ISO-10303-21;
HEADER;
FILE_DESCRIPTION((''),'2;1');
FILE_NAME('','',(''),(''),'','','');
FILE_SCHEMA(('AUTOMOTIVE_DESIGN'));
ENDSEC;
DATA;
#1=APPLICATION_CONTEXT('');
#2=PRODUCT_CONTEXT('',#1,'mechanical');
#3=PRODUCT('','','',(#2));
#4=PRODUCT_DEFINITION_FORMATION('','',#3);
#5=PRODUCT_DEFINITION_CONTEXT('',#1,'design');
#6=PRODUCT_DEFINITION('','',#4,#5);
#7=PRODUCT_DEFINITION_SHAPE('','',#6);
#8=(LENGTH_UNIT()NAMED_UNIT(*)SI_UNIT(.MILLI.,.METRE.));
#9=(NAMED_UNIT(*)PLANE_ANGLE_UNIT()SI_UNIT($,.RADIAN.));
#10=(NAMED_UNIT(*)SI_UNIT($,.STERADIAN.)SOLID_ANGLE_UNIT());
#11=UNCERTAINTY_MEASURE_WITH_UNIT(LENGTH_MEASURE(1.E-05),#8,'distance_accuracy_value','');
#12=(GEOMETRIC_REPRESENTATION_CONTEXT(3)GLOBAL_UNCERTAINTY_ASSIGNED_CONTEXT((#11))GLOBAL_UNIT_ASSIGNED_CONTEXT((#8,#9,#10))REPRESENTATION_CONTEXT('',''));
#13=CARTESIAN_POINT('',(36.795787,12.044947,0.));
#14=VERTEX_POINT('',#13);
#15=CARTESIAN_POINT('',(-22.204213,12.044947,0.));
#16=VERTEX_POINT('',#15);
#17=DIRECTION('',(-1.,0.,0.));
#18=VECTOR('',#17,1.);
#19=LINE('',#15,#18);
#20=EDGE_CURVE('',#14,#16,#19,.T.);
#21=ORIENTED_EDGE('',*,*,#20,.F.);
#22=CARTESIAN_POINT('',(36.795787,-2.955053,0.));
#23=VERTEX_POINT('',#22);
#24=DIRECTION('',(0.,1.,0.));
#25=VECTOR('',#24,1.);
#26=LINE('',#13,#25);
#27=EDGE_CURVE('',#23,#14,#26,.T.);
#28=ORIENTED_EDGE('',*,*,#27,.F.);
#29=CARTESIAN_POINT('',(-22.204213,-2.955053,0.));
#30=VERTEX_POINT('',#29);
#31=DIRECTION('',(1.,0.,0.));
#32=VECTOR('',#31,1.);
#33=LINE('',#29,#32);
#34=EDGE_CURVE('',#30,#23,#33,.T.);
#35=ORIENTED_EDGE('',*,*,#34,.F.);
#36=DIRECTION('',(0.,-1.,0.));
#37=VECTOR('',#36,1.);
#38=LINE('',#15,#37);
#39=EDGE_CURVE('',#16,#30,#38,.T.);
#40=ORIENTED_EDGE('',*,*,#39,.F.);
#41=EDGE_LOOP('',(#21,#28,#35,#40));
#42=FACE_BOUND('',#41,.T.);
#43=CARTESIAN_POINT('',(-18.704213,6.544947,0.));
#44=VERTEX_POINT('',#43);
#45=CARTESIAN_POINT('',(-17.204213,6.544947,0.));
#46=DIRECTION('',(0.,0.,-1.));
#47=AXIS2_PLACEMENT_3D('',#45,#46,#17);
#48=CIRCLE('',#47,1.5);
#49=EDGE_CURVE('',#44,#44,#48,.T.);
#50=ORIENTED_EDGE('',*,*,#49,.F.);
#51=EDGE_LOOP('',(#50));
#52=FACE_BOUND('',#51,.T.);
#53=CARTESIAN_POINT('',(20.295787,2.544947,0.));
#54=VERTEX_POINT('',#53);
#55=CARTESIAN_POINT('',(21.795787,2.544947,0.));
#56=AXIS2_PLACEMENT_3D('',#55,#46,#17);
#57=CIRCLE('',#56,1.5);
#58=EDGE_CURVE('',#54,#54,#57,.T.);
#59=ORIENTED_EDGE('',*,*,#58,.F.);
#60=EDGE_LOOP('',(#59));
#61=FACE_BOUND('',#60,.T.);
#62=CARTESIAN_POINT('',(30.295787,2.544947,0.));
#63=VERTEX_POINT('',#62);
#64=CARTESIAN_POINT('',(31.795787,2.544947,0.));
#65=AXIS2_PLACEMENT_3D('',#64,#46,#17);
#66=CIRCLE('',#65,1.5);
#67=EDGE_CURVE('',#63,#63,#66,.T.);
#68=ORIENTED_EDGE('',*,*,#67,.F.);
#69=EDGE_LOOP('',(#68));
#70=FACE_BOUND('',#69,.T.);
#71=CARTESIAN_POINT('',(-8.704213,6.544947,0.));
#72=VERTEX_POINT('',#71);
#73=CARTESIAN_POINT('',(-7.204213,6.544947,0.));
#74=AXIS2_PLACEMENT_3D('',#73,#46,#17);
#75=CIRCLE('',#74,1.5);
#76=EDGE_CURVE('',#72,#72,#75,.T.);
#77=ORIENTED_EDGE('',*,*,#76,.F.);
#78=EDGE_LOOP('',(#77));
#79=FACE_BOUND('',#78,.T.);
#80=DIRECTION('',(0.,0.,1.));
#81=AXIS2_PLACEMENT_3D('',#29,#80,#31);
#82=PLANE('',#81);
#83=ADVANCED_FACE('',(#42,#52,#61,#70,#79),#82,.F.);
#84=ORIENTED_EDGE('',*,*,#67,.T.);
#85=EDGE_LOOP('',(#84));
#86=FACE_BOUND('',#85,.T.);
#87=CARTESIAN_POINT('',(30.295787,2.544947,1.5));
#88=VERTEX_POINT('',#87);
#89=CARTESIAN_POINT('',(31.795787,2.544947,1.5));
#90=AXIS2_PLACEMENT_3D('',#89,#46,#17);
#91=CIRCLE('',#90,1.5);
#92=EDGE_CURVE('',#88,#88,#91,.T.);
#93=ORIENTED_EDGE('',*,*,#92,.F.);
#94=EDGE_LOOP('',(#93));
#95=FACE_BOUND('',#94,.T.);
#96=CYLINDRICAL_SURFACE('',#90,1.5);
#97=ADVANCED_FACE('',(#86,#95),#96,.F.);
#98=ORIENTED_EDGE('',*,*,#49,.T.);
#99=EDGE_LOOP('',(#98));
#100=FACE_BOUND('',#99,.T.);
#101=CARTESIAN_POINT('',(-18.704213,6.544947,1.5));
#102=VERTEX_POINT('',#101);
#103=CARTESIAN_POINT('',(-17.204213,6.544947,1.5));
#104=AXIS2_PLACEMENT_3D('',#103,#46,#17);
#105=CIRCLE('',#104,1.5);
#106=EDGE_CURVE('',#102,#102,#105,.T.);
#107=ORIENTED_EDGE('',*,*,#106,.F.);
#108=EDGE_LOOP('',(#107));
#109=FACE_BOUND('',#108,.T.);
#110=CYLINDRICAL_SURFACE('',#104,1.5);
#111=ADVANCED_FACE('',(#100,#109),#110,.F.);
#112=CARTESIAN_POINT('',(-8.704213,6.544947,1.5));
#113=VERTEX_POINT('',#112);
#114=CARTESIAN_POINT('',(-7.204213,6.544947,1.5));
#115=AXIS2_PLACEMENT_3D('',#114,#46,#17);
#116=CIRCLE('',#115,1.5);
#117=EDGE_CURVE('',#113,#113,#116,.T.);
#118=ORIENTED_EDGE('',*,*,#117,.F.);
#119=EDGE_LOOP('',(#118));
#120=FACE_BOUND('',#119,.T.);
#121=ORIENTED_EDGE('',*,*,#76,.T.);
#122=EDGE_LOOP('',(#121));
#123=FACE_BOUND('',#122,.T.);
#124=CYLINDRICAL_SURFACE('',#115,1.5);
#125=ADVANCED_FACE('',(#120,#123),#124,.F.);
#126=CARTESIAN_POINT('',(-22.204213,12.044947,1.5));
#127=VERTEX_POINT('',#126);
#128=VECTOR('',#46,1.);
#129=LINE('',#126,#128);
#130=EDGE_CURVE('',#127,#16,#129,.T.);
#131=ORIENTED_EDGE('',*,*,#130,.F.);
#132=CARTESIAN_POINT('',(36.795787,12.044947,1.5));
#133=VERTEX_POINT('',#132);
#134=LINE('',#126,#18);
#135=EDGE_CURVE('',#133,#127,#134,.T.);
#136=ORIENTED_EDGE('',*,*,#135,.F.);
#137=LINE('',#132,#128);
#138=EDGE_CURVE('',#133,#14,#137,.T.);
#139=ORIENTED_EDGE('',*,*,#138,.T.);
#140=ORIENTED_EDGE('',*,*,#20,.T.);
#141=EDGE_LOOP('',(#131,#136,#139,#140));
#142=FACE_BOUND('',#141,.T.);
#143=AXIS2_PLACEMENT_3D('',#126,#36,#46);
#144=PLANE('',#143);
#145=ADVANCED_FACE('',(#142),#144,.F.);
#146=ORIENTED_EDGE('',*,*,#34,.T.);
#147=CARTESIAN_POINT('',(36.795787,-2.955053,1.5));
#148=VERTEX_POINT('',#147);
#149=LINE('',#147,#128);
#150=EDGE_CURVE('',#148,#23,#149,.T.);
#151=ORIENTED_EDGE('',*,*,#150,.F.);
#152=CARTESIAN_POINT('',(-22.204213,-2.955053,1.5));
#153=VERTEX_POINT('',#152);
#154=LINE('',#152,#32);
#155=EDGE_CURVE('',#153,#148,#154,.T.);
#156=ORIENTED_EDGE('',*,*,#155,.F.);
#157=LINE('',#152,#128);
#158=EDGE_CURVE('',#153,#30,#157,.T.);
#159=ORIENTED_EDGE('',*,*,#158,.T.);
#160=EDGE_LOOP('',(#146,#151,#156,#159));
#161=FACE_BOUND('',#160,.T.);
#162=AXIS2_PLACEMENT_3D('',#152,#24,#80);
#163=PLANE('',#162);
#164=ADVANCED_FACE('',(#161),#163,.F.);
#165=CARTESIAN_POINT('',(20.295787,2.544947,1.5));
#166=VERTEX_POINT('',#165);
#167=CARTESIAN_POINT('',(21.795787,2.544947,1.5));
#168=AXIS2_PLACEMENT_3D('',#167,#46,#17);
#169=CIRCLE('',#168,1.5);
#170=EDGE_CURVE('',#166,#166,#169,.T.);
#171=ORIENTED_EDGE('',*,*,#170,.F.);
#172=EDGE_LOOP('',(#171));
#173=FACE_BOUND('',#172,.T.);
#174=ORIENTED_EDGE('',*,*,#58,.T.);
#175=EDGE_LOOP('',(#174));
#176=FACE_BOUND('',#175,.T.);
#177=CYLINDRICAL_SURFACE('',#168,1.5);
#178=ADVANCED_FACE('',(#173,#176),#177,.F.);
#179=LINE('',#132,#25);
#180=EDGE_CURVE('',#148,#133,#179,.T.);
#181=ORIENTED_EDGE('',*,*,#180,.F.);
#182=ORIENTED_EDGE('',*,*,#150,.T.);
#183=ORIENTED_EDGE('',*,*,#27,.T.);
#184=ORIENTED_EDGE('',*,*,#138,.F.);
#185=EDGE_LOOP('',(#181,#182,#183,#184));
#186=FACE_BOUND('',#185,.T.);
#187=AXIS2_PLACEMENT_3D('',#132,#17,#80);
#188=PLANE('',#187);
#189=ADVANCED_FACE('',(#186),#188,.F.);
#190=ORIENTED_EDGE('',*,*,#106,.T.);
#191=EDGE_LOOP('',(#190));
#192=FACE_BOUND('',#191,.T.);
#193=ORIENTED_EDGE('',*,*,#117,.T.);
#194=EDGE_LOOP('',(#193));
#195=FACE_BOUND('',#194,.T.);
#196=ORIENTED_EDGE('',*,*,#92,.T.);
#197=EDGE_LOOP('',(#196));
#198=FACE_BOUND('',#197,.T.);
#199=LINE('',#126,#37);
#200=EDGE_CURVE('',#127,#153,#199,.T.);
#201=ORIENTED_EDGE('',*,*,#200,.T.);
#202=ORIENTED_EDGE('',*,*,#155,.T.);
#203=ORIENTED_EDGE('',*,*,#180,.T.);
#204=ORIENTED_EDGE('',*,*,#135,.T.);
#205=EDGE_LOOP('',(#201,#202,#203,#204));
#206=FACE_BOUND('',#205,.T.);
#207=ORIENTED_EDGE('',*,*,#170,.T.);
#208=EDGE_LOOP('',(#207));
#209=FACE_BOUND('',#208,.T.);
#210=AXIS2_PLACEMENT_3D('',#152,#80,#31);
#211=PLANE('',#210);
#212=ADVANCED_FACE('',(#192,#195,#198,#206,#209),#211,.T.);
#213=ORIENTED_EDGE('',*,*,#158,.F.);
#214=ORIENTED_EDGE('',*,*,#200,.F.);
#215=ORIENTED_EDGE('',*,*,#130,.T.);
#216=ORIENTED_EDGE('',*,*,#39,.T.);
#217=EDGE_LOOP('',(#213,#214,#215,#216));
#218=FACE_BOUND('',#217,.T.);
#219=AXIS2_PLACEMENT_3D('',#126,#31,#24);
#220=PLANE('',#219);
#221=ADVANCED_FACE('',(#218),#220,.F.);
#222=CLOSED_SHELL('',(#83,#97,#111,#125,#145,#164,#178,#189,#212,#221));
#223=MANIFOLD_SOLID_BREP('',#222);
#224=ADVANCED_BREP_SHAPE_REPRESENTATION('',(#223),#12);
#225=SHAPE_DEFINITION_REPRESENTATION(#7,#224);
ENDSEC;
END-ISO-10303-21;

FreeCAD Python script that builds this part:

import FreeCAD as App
import Part
import Sketcher
from FreeCAD import Vector
Q = App.Units.Quantity

doc = App.newDocument("Part")
body = doc.addObject("PartDesign::Body", "Body")

# Sketch on XY plane
sketch1 = body.newObject("Sketcher::SketchObject", "Sketch")
sketch1.AttachmentSupport = (doc.getObject("XY_Plane"), [""])
sketch1.MapMode = "FlatFace"
sketch1.addGeometry(Part.LineSegment(Vector(-22.204213, 12.044947, 0), Vector(-22.204213, -2.955053, 0)), False)
sketch1.addGeometry(Part.LineSegment(Vector(-22.204213, -2.955053, 0), Vector(36.795787, -2.955053, 0)), False)
sketch1.addGeometry(Part.LineSegment(Vector(36.795787, -2.955053, 0), Vector(36.795787, 12.044947, 0)), False)
sketch1.addGeometry(Part.LineSegment(Vector(36.795787, 12.044947, 0), Vector(-22.204213, 12.044947, 0)), False)
sketch1.addConstraint(Sketcher.Constraint("Coincident", 0, 2, 1, 1))
sketch1.addConstraint(Sketcher.Constraint("Coincident", 1, 2, 2, 1))
sketch1.addConstraint(Sketcher.Constraint("Coincident", 2, 2, 3, 1))
sketch1.addConstraint(Sketcher.Constraint("Coincident", 3, 2, 0, 1))
sketch1.addConstraint(Sketcher.Constraint("Vertical", 0))
sketch1.addConstraint(Sketcher.Constraint("Horizontal", 1))
sketch1.addConstraint(Sketcher.Constraint("Vertical", 2))
sketch1.addConstraint(Sketcher.Constraint("Horizontal", 3))
sketch1.addConstraint(Sketcher.Constraint("DistanceX", 1, 1, 1, 2, Q("59 mm")))
sketch1.addConstraint(Sketcher.Constraint("DistanceY", 0, 2, 0, 1, Q("15 mm")))
sketch1.addConstraint(Sketcher.Constraint("DistanceX", 0, 2, -1, 1, Q("22.204213 mm")))
sketch1.addConstraint(Sketcher.Constraint("DistanceY", 0, 2, -1, 1, Q("2.955053 mm")))
pad1 = body.newObject("PartDesign::Pad", "Pad")
pad1.Profile = sketch1
pad1.Length = 1.5

# Sketch on XY plane
sketch2 = body.newObject("Sketcher::SketchObject", "Sketch001")
sketch2.AttachmentSupport = (doc.getObject("XY_Plane"), [""])
sketch2.MapMode = "FlatFace"
sketch2.addGeometry(Part.Circle(Vector(31.795787, 2.544947, 0), Vector(0, 0, 1), 1.5), False)
sketch2.addGeometry(Part.Circle(Vector(21.795787, 2.544947, 0), Vector(0, 0, 1), 1.5), False)
sketch2.addGeometry(Part.Circle(Vector(-17.204213, 6.544947, 0), Vector(0, 0, 1), 1.5), False)
sketch2.addGeometry(Part.Circle(Vector(-7.204213, 6.544947, 0), Vector(0, 0, 1), 1.5), False)
sketch2.addConstraint(Sketcher.Constraint("Equal", 0, 1))
sketch2.addConstraint(Sketcher.Constraint("Equal", 1, 2))
sketch2.addConstraint(Sketcher.Constraint("Equal", 2, 3))
sketch2.addConstraint(Sketcher.Constraint("Horizontal", 0, 3, 1, 3))
sketch2.addConstraint(Sketcher.Constraint("Horizontal", 2, 3, 3, 3))
sketch2.addConstraint(Sketcher.Constraint("Diameter", 0, Q("3 mm")))
sketch2.addConstraint(Sketcher.Constraint("DistanceX", 1, 3, 0, 3, Q("10 mm")))
sketch2.addConstraint(Sketcher.Constraint("DistanceX", 2, 3, 1, 3, Q("39 mm")))
sketch2.addConstraint(Sketcher.Constraint("DistanceY", 1, 3, 2, 3, Q("4 mm")))
sketch2.addConstraint(Sketcher.Constraint("DistanceX", 2, 3, 3, 3, Q("10 mm")))
sketch2.addConstraint(Sketcher.Constraint("DistanceX", -1, 1, 0, 3, Q("31.795787 mm")))
sketch2.addConstraint(Sketcher.Constraint("DistanceY", -1, 1, 0, 3, Q("2.544947 mm")))
pocket1 = body.newObject("PartDesign::Pocket", "Pocket")
pocket1.Profile = sketch2
pocket1.Length = 1.5
pocket1.Reversed = True

doc.recompute()
